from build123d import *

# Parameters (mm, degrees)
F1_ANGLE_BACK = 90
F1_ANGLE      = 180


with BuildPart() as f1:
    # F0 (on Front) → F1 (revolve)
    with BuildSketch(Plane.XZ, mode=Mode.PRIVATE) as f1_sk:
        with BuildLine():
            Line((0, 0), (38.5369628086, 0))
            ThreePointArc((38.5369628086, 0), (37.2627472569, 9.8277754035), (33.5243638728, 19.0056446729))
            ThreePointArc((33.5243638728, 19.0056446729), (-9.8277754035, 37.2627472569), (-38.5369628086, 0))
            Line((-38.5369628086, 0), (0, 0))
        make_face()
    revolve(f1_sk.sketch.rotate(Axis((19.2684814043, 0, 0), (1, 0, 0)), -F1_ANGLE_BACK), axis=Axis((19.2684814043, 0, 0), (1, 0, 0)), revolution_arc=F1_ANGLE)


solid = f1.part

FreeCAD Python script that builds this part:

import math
import FreeCAD as App
import Part
import Sketcher
Q = App.Units.Quantity

doc = App.newDocument("Part")
body = doc.addObject("PartDesign::Body", "Body")

# Sketch on XY plane
sketch1 = body.newObject("Sketcher::SketchObject", "Sketch")
sketch1.AttachmentSupport = (doc.getObject("XY_Plane"), [""])
sketch1.MapMode = "FlatFace"
sketch1.addGeometry(Part.ArcOfCircle(Part.Circle(App.Vector(0, 0, 0), App.Vector(0, 0, 1), 38.536963), math.radians(0), math.radians(29.549784)), False)
sketch1.addGeometry(Part.ArcOfCircle(Part.Circle(App.Vector(0, 0, 0), App.Vector(0, 0, 1), 38.536963), math.radians(29.549784), math.radians(180)), False)
sketch1.addGeometry(Part.LineSegment(App.Vector(-38.536963, 0, 0), App.Vector(38.536963, 0, 0)), False)
sketch1.addConstraint(Sketcher.Constraint("Tangent", 0, 2, 1, 1))
sketch1.addConstraint(Sketcher.Constraint("Coincident", 1, 2, 2, 1))
sketch1.addConstraint(Sketcher.Constraint("Coincident", 2, 2, 0, 1))
sketch1.addConstraint(Sketcher.Constraint("Horizontal", 2))
sketch1.addConstraint(Sketcher.Constraint("Coincident", 0, 3, -1, 1))
sketch1.addConstraint(Sketcher.Constraint("Equal", 0, 1))
sketch1.addConstraint(Sketcher.Constraint("PointOnObject", 1, 2, -1))
sketch1.addConstraint(Sketcher.Constraint("Radius", 0, Q("38.536963 mm")))
sketch1.addConstraint(Sketcher.Constraint("DistanceX", 0, 2, 2, 2, Q("5.012599 mm")))
revolution = body.newObject("PartDesign::Revolution", "Revolution")
revolution.Profile = sketch1
revolution.ReferenceAxis = (sketch1, ["H_Axis"])
revolution.Angle = 180

doc.recompute()
